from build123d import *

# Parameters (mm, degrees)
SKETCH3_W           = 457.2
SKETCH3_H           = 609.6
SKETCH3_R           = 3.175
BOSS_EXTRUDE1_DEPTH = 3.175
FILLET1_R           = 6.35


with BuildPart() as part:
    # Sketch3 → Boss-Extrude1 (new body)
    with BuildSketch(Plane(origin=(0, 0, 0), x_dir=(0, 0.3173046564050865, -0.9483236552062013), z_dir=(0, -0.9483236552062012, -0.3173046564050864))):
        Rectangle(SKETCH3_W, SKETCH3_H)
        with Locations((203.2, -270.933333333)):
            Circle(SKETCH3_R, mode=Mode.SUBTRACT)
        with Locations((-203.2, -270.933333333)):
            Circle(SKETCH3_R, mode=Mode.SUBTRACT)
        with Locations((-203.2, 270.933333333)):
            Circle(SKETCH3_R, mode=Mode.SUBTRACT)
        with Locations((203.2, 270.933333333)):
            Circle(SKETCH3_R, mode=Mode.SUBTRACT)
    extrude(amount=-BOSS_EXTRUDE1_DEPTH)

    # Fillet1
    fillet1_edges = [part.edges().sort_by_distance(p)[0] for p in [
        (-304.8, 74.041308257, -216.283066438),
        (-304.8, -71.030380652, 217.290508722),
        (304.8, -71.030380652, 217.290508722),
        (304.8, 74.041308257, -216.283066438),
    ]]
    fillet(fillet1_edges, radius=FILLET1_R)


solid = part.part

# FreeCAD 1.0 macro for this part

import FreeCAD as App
import Part
import Sketcher

V = App.Vector
Q = App.Units.Quantity


def edges_at(feature, points):
    """Names of the edges that pass closest to the given points."""
    edges = feature.Shape.Edges
    near = lambda p: min(range(len(edges)), key=lambda i: edges[i].distToShape(Part.Vertex(*p))[0])
    return sorted({f"Edge{near(p) + 1}" for p in points})


def add_polygon(sketch, points):
    """Adds a closed chain of lines whose ends are joined by coincident constraints."""
    first, n = sketch.GeometryCount, len(points)
    for a, b in zip(points, points[1:] + points[:1]):
        sketch.addGeometry(Part.LineSegment(App.Vector(*a, 0), App.Vector(*b, 0)), False)
    for i in range(n):
        sketch.addConstraint(Sketcher.Constraint("Coincident", first + i, 2, first + (i + 1) % n, 1))

doc = App.newDocument("Part")
body = doc.addObject("PartDesign::Body", "Body")

# Sketch on an angled plane
sketch1 = body.newObject("Sketcher::SketchObject", "Sketch")
sketch1.Placement = App.Placement(V(0, 0, 0), App.Rotation(V(0, 0.317304656, -0.948323655), V(0.999999999, 0, 0), V(0, -0.948323655, -0.317304656), "ZXY"))
add_polygon(sketch1, [(-228.6, 304.8), (-228.6, -304.8), (228.6, -304.8), (228.6, 304.8)])  # lines 0-3
sketch1.addGeometry(Part.Circle(V(-203.2, -270.9, 0), V(0, 0, 1), 3.2), False)  # 4
sketch1.addGeometry(Part.Circle(V(203.2, -270.9, 0), V(0, 0, 1), 3.2), False)  # 5
sketch1.addGeometry(Part.Circle(V(-203.2, 270.9, 0), V(0, 0, 1), 3.2), False)  # 6
sketch1.addGeometry(Part.Circle(V(203.2, 270.9, 0), V(0, 0, 1), 3.2), False)  # 7
sketch1.addConstraint(Sketcher.Constraint("Vertical", 0))
sketch1.addConstraint(Sketcher.Constraint("Horizontal", 1))
sketch1.addConstraint(Sketcher.Constraint("Vertical", 2))
sketch1.addConstraint(Sketcher.Constraint("Horizontal", 3))
sketch1.addConstraint(Sketcher.Constraint("Equal", 4, 5))
sketch1.addConstraint(Sketcher.Constraint("Equal", 5, 6))
sketch1.addConstraint(Sketcher.Constraint("Equal", 6, 7))
sketch1.addConstraint(Sketcher.Constraint("Symmetric", 5, 3, 6, 3, -1, 1))
sketch1.addConstraint(Sketcher.Constraint("Symmetric", 4, 3, 7, 3, -1, 1))
sketch1.addConstraint(Sketcher.Constraint("Symmetric", 0, 2, 2, 2, -1, 1))
sketch1.addConstraint(Sketcher.Constraint("Symmetric", 4, 3, 5, 3, -2))
sketch1.addConstraint(Sketcher.Constraint("Diameter", 4, Q("0.25 in")))
sketch1.addConstraint(Sketcher.Constraint("DistanceX", 1, 1, 1, 2, Q("18 in")))
sketch1.addConstraint(Sketcher.Constraint("DistanceY", 0, 2, 0, 1, Q("24 in")))
sketch1.addConstraint(Sketcher.Constraint("DistanceX", 4, 3, -1, 1, Q("8 in")))
sketch1.addConstraint(Sketcher.Constraint("DistanceY", 4, 3, -1, 1, Q("270.933333 mm")))
pad1 = body.newObject("PartDesign::Pad", "Pad")
pad1.Profile = sketch1
pad1.Length = Q("0.125 in")
pad1.Reversed = True
doc.recompute()

fillet = body.newObject("PartDesign::Fillet", "Fillet")
fillet.Base = (pad1, edges_at(pad1, [
    (-304.8, 74.041, -216.283),
    (-304.8, -71.03, 217.291),
    (304.8, -71.03, 217.291),
    (304.8, 74.041, -216.283),
]))
fillet.Radius = Q("0.25 in")

doc.recompute()
